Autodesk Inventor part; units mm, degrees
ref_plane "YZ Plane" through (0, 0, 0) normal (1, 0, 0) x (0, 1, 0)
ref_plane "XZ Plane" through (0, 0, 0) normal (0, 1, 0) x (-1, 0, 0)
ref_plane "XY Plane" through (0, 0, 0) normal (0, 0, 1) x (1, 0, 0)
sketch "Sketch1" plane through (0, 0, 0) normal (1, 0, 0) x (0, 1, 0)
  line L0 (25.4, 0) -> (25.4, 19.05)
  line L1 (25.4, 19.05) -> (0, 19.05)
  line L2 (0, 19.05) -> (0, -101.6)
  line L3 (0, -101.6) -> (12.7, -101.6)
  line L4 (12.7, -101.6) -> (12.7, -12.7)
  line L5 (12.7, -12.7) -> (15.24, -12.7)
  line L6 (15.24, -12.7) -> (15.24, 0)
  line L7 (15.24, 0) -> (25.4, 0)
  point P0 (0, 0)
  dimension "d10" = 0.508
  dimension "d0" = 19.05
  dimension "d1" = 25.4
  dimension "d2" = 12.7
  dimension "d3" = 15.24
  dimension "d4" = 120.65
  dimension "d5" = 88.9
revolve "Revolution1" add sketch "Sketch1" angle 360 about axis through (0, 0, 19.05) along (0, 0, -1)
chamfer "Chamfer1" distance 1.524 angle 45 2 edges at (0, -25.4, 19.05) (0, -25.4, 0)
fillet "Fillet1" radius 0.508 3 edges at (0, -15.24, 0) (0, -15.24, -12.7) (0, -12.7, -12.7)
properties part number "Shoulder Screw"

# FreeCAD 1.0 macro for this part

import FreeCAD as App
import Part
import Sketcher
from FreeCAD import Vector
Q = App.Units.Quantity


def edges_at(feature, points):
    """Names of the edges that pass closest to the given points."""
    edges = feature.Shape.Edges
    near = lambda p: min(range(len(edges)), key=lambda i: edges[i].distToShape(Part.Vertex(*p))[0])
    return sorted({f"Edge{near(p) + 1}" for p in points})

doc = App.newDocument("Part")
body = doc.addObject("PartDesign::Body", "Body")

# Sketch on YZ plane
sketch1 = body.newObject("Sketcher::SketchObject", "Sketch")
sketch1.AttachmentSupport = (doc.getObject("YZ_Plane"), [""])
sketch1.MapMode = "FlatFace"
sketch1.addGeometry([
    Part.LineSegment(Vector(15.2, 0, 0), Vector(25.4, 0, 0)),  # 0
    Part.LineSegment(Vector(25.4, 0, 0), Vector(25.4, 19.1, 0)),  # 1
    Part.LineSegment(Vector(25.4, 19.1, 0), Vector(0, 19.1, 0)),  # 2
    Part.LineSegment(Vector(0, 19.1, 0), Vector(0, -101.6, 0)),  # 3
    Part.LineSegment(Vector(0, -101.6, 0), Vector(12.7, -101.6, 0)),  # 4
    Part.LineSegment(Vector(12.7, -101.6, 0), Vector(12.7, -12.7, 0)),  # 5
    Part.LineSegment(Vector(12.7, -12.7, 0), Vector(15.2, -12.7, 0)),  # 6
    Part.LineSegment(Vector(15.2, -12.7, 0), Vector(15.2, 0, 0)),  # 7
], False)
sketch1.addConstraint([
    Sketcher.Constraint("Coincident", 0, 2, 1, 1),
    Sketcher.Constraint("Coincident", 1, 2, 2, 1),
    Sketcher.Constraint("Coincident", 2, 2, 3, 1),
    Sketcher.Constraint("Coincident", 3, 2, 4, 1),
    Sketcher.Constraint("Coincident", 4, 2, 5, 1),
    Sketcher.Constraint("Coincident", 5, 2, 6, 1),
    Sketcher.Constraint("Coincident", 6, 2, 7, 1),
    Sketcher.Constraint("Coincident", 7, 2, 0, 1),
    Sketcher.Constraint("Horizontal", 0),
    Sketcher.Constraint("Vertical", 1),
    Sketcher.Constraint("Horizontal", 2),
    Sketcher.Constraint("Vertical", 3),
    Sketcher.Constraint("Horizontal", 4),
    Sketcher.Constraint("Vertical", 5),
    Sketcher.Constraint("Horizontal", 6),
    Sketcher.Constraint("Vertical", 7),
    Sketcher.Constraint("PointOnObject", 0, 2, -1),
    Sketcher.Constraint("PointOnObject", 2, 2, -2),
    Sketcher.Constraint("Equal", 4, 7),
    Sketcher.Constraint("DistanceX", 2, 2, 2, 1, Q("1 in")),
    Sketcher.Constraint("DistanceX", 4, 1, 4, 2, Q("0.5 in")),
    Sketcher.Constraint("DistanceY", 5, 1, 5, 2, Q("3.5 in")),
    Sketcher.Constraint("DistanceY", 1, 1, 1, 2, Q("0.75 in")),
    Sketcher.Constraint("DistanceX", -1, 1, 6, 2, Q("0.6 in")),
])
revolution = body.newObject("PartDesign::Revolution", "Revolution")
revolution.Profile = sketch1
revolution.ReferenceAxis = (sketch1, ["V_Axis"])
revolution.Angle = 360
doc.recompute()

chamfer = body.newObject("PartDesign::Chamfer", "Chamfer")
chamfer.Base = (revolution, edges_at(revolution, [(0, -25.4, 19.05), (0, -25.4, 0)]))
chamfer.Size = Q("0.06 in")
doc.recompute()

fillet = body.newObject("PartDesign::Fillet", "Fillet")
fillet.Base = (chamfer, edges_at(chamfer, [(0, -15.24, 0), (0, -15.24, -12.7), (0, -12.7, -12.7)]))
fillet.Radius = Q("0.02 in")

doc.recompute()
